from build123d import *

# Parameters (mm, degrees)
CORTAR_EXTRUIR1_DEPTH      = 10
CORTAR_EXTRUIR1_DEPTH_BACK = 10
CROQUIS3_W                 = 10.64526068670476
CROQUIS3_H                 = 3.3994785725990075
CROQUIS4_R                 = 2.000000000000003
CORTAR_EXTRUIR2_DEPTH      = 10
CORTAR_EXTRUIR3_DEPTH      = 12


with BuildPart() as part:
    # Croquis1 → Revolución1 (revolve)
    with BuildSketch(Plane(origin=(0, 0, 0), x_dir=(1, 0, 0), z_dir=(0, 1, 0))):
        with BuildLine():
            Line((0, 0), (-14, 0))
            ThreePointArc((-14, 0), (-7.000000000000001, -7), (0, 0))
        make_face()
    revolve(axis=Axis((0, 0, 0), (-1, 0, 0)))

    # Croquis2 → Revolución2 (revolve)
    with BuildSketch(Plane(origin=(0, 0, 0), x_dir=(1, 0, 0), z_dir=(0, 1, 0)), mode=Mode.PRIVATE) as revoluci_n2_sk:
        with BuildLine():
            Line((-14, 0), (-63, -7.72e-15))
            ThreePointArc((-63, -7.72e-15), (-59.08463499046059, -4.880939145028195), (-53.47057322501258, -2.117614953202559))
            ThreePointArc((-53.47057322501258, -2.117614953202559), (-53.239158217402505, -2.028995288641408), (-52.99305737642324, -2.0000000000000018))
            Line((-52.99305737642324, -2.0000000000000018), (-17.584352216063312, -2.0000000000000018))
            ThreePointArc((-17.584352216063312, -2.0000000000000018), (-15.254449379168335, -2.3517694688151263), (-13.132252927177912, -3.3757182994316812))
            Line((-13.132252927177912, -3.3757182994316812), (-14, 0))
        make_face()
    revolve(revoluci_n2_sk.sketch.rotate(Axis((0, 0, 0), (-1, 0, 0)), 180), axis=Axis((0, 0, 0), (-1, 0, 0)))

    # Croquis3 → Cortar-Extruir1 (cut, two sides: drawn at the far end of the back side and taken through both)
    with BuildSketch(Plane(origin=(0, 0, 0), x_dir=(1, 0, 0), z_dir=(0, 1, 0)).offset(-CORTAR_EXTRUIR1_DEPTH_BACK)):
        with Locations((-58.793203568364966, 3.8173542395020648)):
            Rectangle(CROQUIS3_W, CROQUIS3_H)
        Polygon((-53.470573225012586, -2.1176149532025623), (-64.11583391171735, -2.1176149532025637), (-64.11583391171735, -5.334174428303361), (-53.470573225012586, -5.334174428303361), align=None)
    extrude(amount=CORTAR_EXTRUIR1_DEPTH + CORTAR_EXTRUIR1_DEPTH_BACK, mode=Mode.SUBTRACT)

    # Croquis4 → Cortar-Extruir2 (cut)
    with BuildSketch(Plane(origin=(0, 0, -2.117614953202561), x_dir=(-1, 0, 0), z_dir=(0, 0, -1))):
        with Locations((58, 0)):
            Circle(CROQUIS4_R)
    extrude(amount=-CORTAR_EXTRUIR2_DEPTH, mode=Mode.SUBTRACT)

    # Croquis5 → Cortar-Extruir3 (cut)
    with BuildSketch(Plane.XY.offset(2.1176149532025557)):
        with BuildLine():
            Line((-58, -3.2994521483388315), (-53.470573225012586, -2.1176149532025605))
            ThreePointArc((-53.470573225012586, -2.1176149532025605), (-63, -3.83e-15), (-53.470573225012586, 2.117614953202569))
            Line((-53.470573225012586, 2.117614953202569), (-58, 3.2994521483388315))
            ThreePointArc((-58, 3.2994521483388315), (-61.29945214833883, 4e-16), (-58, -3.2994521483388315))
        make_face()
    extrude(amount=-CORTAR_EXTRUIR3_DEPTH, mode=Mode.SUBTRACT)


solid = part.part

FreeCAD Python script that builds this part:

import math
import FreeCAD as App
import Part
import Sketcher

doc = App.newDocument("Part")
params = doc.addObject("Spreadsheet::Sheet", "Params")
for row, (alias, value) in enumerate([
    ("sketch1_radius", "7 mm"),
    ("revolution_angle", "360 deg"),
    ("sketch2_radius", "5 mm"),
    ("sketch2_radius2", "1 mm"),
    ("sketch2_width", "49 mm"),
    ("revolution2_angle", "360 deg"),
    ("sketch4_diameter", "4 mm"),
    ("pocket2_length", "10 mm"),
    ("sketch5_radius", "5 mm"),
    ("pocket3_length", "12 mm"),
], start=1):
    params.set(f"A{row}", alias)
    params.set(f"B{row}", "=" + value)
    params.setAlias(f"B{row}", alias)

body = doc.addObject("PartDesign::Body", "Body")

# Sketch on XZ plane
sketch1 = body.newObject("Sketcher::SketchObject", "Sketch")
sketch1.AttachmentSupport = (doc.getObject("XZ_Plane"), [""])
sketch1.MapMode = "FlatFace"
sketch1.addGeometry([
    Part.LineSegment(App.Vector(0, 0, 0), App.Vector(-14, 0, 0)),
    Part.ArcOfCircle(Part.Circle(App.Vector(-7, 0, 0), App.Vector(0, 0, 1), 7), math.radians(0), math.radians(180)),
], False)
sketch1.addConstraint([
    Sketcher.Constraint("Coincident", 0, 1, 1, 1),
    Sketcher.Constraint("Coincident", 1, 2, 0, 2),
    Sketcher.Constraint("Horizontal", 0),
    Sketcher.Constraint("Coincident", 0, 1, -1, 1),
    Sketcher.Constraint("PointOnObject", 1, 3, -1),
    Sketcher.Constraint("Radius", 1, 7.0),
])
sketch1.setExpression("Constraints[5]", "Params.sketch1_radius")
revolution = body.newObject("PartDesign::Revolution", "Revolution")
revolution.Profile = sketch1
revolution.ReferenceAxis = (sketch1, ["H_Axis"])
revolution.setExpression("Angle", "Params.revolution_angle")

# Sketch on XZ plane
sketch2 = body.newObject("Sketcher::SketchObject", "Sketch001")
sketch2.AttachmentSupport = (doc.getObject("XZ_Plane"), [""])
sketch2.MapMode = "FlatFace"
sketch2.addGeometry([
    Part.LineSegment(App.Vector(-14, 0, 0), App.Vector(-63, 0, 0)),  # 0
    Part.ArcOfCircle(Part.Circle(App.Vector(-58, 0, 0), App.Vector(0, 0, 1), 5), math.radians(25), math.radians(180)),  # 1
    Part.ArcOfCircle(Part.Circle(App.Vector(-53, 3, 0), App.Vector(0, 0, 1), 1), math.radians(-118), math.radians(-90)),  # 2
    Part.LineSegment(App.Vector(-52.99, 2, 0), App.Vector(-17.58, 2, 0)),  # 3
    Part.ArcOfCircle(Part.Circle(App.Vector(-17.58, 9.89, 0), App.Vector(0, 0, 1), 7.89), math.radians(-90), math.radians(-56)),  # 4
    Part.LineSegment(App.Vector(-13.13, 3.38, 0), App.Vector(-14, 0, 0)),  # 5
], False)
sketch2.addConstraint([
    Sketcher.Constraint("Coincident", 0, 2, 1, 2),
    Sketcher.Constraint("Coincident", 1, 1, 2, 1),
    Sketcher.Constraint("Coincident", 2, 2, 3, 1),
    Sketcher.Constraint("Tangent", 3, 2, 4, 1),
    Sketcher.Constraint("Coincident", 4, 2, 5, 1),
    Sketcher.Constraint("Coincident", 5, 2, 0, 1),
    Sketcher.Constraint("Horizontal", 0),
    Sketcher.Constraint("Horizontal", 3),
    Sketcher.Constraint("PointOnObject", 1, 3, -1),
    Sketcher.Constraint("PointOnObject", 0, 2, -1),
    Sketcher.Constraint("Radius", 1, 5.0),
    Sketcher.Constraint("Radius", 2, 1.0),
    Sketcher.Constraint("DistanceX", 0, 2, 0, 1, 49.0),
    Sketcher.Constraint("DistanceX", 1, 3, -1, 1, 58.0),
    Sketcher.Constraint("DistanceX", 2, 3, -1, 1, 53.0),
    Sketcher.Constraint("DistanceY", -1, 1, 2, 2, 2.0),
    Sketcher.Constraint("Radius", 4, 7.891801),
    Sketcher.Constraint("DistanceX", 3, 2, 4, 2, 4.452099),
    Sketcher.Constraint("DistanceX", 3, 1, 3, 2, 35.408705),
    Sketcher.Constraint("DistanceX", 1, 1, 4, 3, 35.886221),
])
sketch2.setExpression("Constraints[10]", "Params.sketch2_radius")
sketch2.setExpression("Constraints[11]", "Params.sketch2_radius2")
sketch2.setExpression("Constraints[12]", "Params.sketch2_width")
revolution2 = body.newObject("PartDesign::Revolution", "Revolution001")
revolution2.Profile = sketch2
revolution2.ReferenceAxis = (sketch2, ["H_Axis"])
revolution2.setExpression("Angle", "Params.revolution2_angle")

# Sketch on XZ plane
sketch3 = body.newObject("Sketcher::SketchObject", "Sketch002")
sketch3.AttachmentSupport = (doc.getObject("XZ_Plane"), [""])
sketch3.MapMode = "FlatFace"
sketch3.addGeometry([
    Part.LineSegment(App.Vector(-64.1, -5.5, 0), App.Vector(-64.1, -2.1, 0)),  # 0
    Part.LineSegment(App.Vector(-64.1, -2.1, 0), App.Vector(-53.5, -2.1, 0)),  # 1
    Part.LineSegment(App.Vector(-53.5, -2.1, 0), App.Vector(-53.5, -5.5, 0)),  # 2
    Part.LineSegment(App.Vector(-53.5, -5.5, 0), App.Vector(-64.1, -5.5, 0)),  # 3
    Part.LineSegment(App.Vector(-53.5, 2.1, 0), App.Vector(-64.1, 2.1, 0)),  # 4
    Part.LineSegment(App.Vector(-64.1, 2.1, 0), App.Vector(-64.1, 5.3, 0)),  # 5
    Part.LineSegment(App.Vector(-64.1, 5.3, 0), App.Vector(-53.5, 5.3, 0)),  # 6
    Part.LineSegment(App.Vector(-53.5, 5.3, 0), App.Vector(-53.5, 2.1, 0)),  # 7
], False)
sketch3.addConstraint([
    Sketcher.Constraint("Coincident", 0, 2, 1, 1),
    Sketcher.Constraint("Coincident", 1, 2, 2, 1),
    Sketcher.Constraint("Coincident", 2, 2, 3, 1),
    Sketcher.Constraint("Coincident", 3, 2, 0, 1),
    Sketcher.Constraint("Coincident", 4, 2, 5, 1),
    Sketcher.Constraint("Coincident", 5, 2, 6, 1),
    Sketcher.Constraint("Coincident", 6, 2, 7, 1),
    Sketcher.Constraint("Coincident", 7, 2, 4, 1),
    Sketcher.Constraint("Vertical", 0),
    Sketcher.Constraint("Horizontal", 1),
    Sketcher.Constraint("Vertical", 2),
    Sketcher.Constraint("Horizontal", 3),
    Sketcher.Constraint("Horizontal", 4),
    Sketcher.Constraint("Vertical", 5),
    Sketcher.Constraint("Horizontal", 6),
    Sketcher.Constraint("Vertical", 7),
    Sketcher.Constraint("Symmetric", 0, 2, 4, 2, -1),
    Sketcher.Constraint("Vertical", 2, 2, 6, 2),
    Sketcher.Constraint("DistanceX", 1, 1, 1, 2, 10.645261),
    Sketcher.Constraint("DistanceY", 0, 1, 0, 2, 3.399479),
    Sketcher.Constraint("DistanceY", 5, 1, 5, 2, 3.216559),
    Sketcher.Constraint("DistanceY", 0, 2, 4, 2, 4.23523),
    Sketcher.Constraint("DistanceX", 0, 2, -1, 1, 64.115834),
])
pocket1 = body.newObject("PartDesign::Pocket", "Pocket")
pocket1.Profile = sketch3
pocket1.Type = "ThroughAll"
pocket1.Midplane = True

# Sketch on XY plane
sketch4 = body.newObject("Sketcher::SketchObject", "Sketch003")
sketch4.AttachmentSupport = (doc.getObject("XY_Plane"), [""])
sketch4.MapMode = "FlatFace"
sketch4.AttachmentOffset = App.Placement(App.Vector(0, 0, -2.117615), App.Rotation())
sketch4.addGeometry(Part.Circle(App.Vector(-58, 0, 0), App.Vector(0, 0, 1), 2), False)
sketch4.addConstraint([
    Sketcher.Constraint("PointOnObject", 0, 3, -1),
    Sketcher.Constraint("Diameter", 0, 4.0),
    Sketcher.Constraint("DistanceX", 0, 3, -1, 1, 58.0),
])
sketch4.setExpression("Constraints[1]", "Params.sketch4_diameter")
pocket2 = body.newObject("PartDesign::Pocket", "Pocket001")
pocket2.Profile = sketch4
pocket2.setExpression("Length", "Params.pocket2_length")
pocket2.Reversed = True

# Sketch on XY plane
sketch5 = body.newObject("Sketcher::SketchObject", "Sketch004")
sketch5.AttachmentSupport = (doc.getObject("XY_Plane"), [""])
sketch5.MapMode = "FlatFace"
sketch5.AttachmentOffset = App.Placement(App.Vector(0, 0, 2.117615), App.Rotation())
sketch5.addGeometry([
    Part.LineSegment(App.Vector(-53.5, -2.1, 0), App.Vector(-58, -3.3, 0)),
    Part.ArcOfCircle(Part.Circle(App.Vector(-58, 0, 0), App.Vector(0, 0, 1), 3.3), math.radians(90), math.radians(270)),
    Part.LineSegment(App.Vector(-58, 3.3, 0), App.Vector(-53.5, 2.1, 0)),
    Part.ArcOfCircle(Part.Circle(App.Vector(-58, 0, 0), App.Vector(0, 0, 1), 5), math.radians(25), math.radians(335)),
], False)
sketch5.addConstraint([
    Sketcher.Constraint("Coincident", 0, 2, 1, 2),
    Sketcher.Constraint("Coincident", 1, 1, 2, 1),
    Sketcher.Constraint("Coincident", 2, 2, 3, 1),
    Sketcher.Constraint("Coincident", 3, 2, 0, 1),
    Sketcher.Constraint("Coincident", 3, 3, 1, 3),
    Sketcher.Constraint("Symmetric", 0, 2, 1, 1, -1),
    Sketcher.Constraint("Vertical", 3, 3, 0, 2),
    Sketcher.Constraint("Vertical", 2, 2, 3, 2),
    Sketcher.Constraint("Radius", 3, 5.0),
    Sketcher.Constraint("DistanceX", 1, 3, -1, 1, 58.0),
    Sketcher.Constraint("Radius", 1, 3.299452),
    Sketcher.Constraint("DistanceY", 3, 2, 2, 2, 4.23523),
])
sketch5.setExpression("Constraints[8]", "Params.sketch5_radius")
pocket3 = body.newObject("PartDesign::Pocket", "Pocket002")
pocket3.Profile = sketch5
pocket3.setExpression("Length", "Params.pocket3_length")

doc.recompute()
